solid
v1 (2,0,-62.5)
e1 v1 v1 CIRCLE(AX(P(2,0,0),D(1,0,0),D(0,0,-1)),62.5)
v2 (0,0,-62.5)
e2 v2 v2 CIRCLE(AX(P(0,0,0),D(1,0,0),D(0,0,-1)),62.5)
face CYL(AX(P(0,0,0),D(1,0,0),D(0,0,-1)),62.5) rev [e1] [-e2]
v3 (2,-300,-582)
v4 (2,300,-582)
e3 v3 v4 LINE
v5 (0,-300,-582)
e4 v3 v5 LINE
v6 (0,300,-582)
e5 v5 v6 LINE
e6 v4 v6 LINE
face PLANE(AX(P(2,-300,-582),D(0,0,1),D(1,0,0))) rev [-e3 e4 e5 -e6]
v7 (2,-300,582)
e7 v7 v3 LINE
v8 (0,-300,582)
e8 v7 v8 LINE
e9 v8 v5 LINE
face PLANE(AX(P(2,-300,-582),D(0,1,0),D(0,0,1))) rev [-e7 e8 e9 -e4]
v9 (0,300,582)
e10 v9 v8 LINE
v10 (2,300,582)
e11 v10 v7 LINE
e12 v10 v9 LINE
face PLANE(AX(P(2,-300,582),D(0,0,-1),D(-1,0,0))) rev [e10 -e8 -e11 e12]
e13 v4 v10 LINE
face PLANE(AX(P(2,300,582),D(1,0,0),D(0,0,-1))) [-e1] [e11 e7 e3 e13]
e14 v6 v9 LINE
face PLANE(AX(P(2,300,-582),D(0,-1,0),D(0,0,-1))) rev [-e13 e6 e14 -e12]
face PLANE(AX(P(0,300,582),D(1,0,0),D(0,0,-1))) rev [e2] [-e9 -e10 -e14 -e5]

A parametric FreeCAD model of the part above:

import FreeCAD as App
import Part
import Sketcher

V = App.Vector


def add_polygon(sketch, points):
    """Adds a closed chain of lines whose ends are joined by coincident constraints."""
    first, n = sketch.GeometryCount, len(points)
    for a, b in zip(points, points[1:] + points[:1]):
        sketch.addGeometry(Part.LineSegment(App.Vector(*a, 0), App.Vector(*b, 0)), False)
    for i in range(n):
        sketch.addConstraint(Sketcher.Constraint("Coincident", first + i, 2, first + (i + 1) % n, 1))

doc = App.newDocument("Part")
body = doc.addObject("PartDesign::Body", "Body")

# Sketch on YZ plane
sketch1 = body.newObject("Sketcher::SketchObject", "Sketch")
sketch1.AttachmentSupport = (doc.getObject("YZ_Plane"), [""])
sketch1.MapMode = "FlatFace"
add_polygon(sketch1, [(300, 582), (-300, 582), (-300, -582), (300, -582)])  # lines 0-3
sketch1.addConstraint(Sketcher.Constraint("Horizontal", 0))
sketch1.addConstraint(Sketcher.Constraint("Vertical", 1))
sketch1.addConstraint(Sketcher.Constraint("Horizontal", 2))
sketch1.addConstraint(Sketcher.Constraint("Vertical", 3))
sketch1.addConstraint(Sketcher.Constraint("Symmetric", 0, 2, 2, 2, -1, 1))
sketch1.addConstraint(Sketcher.Constraint("DistanceX", 0, 2, 0, 1, 600.0))
sketch1.addConstraint(Sketcher.Constraint("DistanceY", 1, 2, 1, 1, 1164.0))
pad1 = body.newObject("PartDesign::Pad", "Pad")
pad1.Profile = sketch1
pad1.Length = 2

# Sketch on YZ plane
sketch2 = body.newObject("Sketcher::SketchObject", "Sketch001")
sketch2.AttachmentSupport = (doc.getObject("YZ_Plane"), [""])
sketch2.MapMode = "FlatFace"
sketch2.AttachmentOffset = App.Placement(V(0, 0, 2), App.Rotation())
sketch2.addGeometry(Part.Circle(V(0, 0, 0), V(0, 0, 1), 62), False)
sketch2.addConstraint(Sketcher.Constraint("Coincident", 0, 3, -1, 1))
sketch2.addConstraint(Sketcher.Constraint("Diameter", 0, 125.0))
pocket1 = body.newObject("PartDesign::Pocket", "Pocket")
pocket1.Profile = sketch2
pocket1.Length = 2

doc.recompute()
